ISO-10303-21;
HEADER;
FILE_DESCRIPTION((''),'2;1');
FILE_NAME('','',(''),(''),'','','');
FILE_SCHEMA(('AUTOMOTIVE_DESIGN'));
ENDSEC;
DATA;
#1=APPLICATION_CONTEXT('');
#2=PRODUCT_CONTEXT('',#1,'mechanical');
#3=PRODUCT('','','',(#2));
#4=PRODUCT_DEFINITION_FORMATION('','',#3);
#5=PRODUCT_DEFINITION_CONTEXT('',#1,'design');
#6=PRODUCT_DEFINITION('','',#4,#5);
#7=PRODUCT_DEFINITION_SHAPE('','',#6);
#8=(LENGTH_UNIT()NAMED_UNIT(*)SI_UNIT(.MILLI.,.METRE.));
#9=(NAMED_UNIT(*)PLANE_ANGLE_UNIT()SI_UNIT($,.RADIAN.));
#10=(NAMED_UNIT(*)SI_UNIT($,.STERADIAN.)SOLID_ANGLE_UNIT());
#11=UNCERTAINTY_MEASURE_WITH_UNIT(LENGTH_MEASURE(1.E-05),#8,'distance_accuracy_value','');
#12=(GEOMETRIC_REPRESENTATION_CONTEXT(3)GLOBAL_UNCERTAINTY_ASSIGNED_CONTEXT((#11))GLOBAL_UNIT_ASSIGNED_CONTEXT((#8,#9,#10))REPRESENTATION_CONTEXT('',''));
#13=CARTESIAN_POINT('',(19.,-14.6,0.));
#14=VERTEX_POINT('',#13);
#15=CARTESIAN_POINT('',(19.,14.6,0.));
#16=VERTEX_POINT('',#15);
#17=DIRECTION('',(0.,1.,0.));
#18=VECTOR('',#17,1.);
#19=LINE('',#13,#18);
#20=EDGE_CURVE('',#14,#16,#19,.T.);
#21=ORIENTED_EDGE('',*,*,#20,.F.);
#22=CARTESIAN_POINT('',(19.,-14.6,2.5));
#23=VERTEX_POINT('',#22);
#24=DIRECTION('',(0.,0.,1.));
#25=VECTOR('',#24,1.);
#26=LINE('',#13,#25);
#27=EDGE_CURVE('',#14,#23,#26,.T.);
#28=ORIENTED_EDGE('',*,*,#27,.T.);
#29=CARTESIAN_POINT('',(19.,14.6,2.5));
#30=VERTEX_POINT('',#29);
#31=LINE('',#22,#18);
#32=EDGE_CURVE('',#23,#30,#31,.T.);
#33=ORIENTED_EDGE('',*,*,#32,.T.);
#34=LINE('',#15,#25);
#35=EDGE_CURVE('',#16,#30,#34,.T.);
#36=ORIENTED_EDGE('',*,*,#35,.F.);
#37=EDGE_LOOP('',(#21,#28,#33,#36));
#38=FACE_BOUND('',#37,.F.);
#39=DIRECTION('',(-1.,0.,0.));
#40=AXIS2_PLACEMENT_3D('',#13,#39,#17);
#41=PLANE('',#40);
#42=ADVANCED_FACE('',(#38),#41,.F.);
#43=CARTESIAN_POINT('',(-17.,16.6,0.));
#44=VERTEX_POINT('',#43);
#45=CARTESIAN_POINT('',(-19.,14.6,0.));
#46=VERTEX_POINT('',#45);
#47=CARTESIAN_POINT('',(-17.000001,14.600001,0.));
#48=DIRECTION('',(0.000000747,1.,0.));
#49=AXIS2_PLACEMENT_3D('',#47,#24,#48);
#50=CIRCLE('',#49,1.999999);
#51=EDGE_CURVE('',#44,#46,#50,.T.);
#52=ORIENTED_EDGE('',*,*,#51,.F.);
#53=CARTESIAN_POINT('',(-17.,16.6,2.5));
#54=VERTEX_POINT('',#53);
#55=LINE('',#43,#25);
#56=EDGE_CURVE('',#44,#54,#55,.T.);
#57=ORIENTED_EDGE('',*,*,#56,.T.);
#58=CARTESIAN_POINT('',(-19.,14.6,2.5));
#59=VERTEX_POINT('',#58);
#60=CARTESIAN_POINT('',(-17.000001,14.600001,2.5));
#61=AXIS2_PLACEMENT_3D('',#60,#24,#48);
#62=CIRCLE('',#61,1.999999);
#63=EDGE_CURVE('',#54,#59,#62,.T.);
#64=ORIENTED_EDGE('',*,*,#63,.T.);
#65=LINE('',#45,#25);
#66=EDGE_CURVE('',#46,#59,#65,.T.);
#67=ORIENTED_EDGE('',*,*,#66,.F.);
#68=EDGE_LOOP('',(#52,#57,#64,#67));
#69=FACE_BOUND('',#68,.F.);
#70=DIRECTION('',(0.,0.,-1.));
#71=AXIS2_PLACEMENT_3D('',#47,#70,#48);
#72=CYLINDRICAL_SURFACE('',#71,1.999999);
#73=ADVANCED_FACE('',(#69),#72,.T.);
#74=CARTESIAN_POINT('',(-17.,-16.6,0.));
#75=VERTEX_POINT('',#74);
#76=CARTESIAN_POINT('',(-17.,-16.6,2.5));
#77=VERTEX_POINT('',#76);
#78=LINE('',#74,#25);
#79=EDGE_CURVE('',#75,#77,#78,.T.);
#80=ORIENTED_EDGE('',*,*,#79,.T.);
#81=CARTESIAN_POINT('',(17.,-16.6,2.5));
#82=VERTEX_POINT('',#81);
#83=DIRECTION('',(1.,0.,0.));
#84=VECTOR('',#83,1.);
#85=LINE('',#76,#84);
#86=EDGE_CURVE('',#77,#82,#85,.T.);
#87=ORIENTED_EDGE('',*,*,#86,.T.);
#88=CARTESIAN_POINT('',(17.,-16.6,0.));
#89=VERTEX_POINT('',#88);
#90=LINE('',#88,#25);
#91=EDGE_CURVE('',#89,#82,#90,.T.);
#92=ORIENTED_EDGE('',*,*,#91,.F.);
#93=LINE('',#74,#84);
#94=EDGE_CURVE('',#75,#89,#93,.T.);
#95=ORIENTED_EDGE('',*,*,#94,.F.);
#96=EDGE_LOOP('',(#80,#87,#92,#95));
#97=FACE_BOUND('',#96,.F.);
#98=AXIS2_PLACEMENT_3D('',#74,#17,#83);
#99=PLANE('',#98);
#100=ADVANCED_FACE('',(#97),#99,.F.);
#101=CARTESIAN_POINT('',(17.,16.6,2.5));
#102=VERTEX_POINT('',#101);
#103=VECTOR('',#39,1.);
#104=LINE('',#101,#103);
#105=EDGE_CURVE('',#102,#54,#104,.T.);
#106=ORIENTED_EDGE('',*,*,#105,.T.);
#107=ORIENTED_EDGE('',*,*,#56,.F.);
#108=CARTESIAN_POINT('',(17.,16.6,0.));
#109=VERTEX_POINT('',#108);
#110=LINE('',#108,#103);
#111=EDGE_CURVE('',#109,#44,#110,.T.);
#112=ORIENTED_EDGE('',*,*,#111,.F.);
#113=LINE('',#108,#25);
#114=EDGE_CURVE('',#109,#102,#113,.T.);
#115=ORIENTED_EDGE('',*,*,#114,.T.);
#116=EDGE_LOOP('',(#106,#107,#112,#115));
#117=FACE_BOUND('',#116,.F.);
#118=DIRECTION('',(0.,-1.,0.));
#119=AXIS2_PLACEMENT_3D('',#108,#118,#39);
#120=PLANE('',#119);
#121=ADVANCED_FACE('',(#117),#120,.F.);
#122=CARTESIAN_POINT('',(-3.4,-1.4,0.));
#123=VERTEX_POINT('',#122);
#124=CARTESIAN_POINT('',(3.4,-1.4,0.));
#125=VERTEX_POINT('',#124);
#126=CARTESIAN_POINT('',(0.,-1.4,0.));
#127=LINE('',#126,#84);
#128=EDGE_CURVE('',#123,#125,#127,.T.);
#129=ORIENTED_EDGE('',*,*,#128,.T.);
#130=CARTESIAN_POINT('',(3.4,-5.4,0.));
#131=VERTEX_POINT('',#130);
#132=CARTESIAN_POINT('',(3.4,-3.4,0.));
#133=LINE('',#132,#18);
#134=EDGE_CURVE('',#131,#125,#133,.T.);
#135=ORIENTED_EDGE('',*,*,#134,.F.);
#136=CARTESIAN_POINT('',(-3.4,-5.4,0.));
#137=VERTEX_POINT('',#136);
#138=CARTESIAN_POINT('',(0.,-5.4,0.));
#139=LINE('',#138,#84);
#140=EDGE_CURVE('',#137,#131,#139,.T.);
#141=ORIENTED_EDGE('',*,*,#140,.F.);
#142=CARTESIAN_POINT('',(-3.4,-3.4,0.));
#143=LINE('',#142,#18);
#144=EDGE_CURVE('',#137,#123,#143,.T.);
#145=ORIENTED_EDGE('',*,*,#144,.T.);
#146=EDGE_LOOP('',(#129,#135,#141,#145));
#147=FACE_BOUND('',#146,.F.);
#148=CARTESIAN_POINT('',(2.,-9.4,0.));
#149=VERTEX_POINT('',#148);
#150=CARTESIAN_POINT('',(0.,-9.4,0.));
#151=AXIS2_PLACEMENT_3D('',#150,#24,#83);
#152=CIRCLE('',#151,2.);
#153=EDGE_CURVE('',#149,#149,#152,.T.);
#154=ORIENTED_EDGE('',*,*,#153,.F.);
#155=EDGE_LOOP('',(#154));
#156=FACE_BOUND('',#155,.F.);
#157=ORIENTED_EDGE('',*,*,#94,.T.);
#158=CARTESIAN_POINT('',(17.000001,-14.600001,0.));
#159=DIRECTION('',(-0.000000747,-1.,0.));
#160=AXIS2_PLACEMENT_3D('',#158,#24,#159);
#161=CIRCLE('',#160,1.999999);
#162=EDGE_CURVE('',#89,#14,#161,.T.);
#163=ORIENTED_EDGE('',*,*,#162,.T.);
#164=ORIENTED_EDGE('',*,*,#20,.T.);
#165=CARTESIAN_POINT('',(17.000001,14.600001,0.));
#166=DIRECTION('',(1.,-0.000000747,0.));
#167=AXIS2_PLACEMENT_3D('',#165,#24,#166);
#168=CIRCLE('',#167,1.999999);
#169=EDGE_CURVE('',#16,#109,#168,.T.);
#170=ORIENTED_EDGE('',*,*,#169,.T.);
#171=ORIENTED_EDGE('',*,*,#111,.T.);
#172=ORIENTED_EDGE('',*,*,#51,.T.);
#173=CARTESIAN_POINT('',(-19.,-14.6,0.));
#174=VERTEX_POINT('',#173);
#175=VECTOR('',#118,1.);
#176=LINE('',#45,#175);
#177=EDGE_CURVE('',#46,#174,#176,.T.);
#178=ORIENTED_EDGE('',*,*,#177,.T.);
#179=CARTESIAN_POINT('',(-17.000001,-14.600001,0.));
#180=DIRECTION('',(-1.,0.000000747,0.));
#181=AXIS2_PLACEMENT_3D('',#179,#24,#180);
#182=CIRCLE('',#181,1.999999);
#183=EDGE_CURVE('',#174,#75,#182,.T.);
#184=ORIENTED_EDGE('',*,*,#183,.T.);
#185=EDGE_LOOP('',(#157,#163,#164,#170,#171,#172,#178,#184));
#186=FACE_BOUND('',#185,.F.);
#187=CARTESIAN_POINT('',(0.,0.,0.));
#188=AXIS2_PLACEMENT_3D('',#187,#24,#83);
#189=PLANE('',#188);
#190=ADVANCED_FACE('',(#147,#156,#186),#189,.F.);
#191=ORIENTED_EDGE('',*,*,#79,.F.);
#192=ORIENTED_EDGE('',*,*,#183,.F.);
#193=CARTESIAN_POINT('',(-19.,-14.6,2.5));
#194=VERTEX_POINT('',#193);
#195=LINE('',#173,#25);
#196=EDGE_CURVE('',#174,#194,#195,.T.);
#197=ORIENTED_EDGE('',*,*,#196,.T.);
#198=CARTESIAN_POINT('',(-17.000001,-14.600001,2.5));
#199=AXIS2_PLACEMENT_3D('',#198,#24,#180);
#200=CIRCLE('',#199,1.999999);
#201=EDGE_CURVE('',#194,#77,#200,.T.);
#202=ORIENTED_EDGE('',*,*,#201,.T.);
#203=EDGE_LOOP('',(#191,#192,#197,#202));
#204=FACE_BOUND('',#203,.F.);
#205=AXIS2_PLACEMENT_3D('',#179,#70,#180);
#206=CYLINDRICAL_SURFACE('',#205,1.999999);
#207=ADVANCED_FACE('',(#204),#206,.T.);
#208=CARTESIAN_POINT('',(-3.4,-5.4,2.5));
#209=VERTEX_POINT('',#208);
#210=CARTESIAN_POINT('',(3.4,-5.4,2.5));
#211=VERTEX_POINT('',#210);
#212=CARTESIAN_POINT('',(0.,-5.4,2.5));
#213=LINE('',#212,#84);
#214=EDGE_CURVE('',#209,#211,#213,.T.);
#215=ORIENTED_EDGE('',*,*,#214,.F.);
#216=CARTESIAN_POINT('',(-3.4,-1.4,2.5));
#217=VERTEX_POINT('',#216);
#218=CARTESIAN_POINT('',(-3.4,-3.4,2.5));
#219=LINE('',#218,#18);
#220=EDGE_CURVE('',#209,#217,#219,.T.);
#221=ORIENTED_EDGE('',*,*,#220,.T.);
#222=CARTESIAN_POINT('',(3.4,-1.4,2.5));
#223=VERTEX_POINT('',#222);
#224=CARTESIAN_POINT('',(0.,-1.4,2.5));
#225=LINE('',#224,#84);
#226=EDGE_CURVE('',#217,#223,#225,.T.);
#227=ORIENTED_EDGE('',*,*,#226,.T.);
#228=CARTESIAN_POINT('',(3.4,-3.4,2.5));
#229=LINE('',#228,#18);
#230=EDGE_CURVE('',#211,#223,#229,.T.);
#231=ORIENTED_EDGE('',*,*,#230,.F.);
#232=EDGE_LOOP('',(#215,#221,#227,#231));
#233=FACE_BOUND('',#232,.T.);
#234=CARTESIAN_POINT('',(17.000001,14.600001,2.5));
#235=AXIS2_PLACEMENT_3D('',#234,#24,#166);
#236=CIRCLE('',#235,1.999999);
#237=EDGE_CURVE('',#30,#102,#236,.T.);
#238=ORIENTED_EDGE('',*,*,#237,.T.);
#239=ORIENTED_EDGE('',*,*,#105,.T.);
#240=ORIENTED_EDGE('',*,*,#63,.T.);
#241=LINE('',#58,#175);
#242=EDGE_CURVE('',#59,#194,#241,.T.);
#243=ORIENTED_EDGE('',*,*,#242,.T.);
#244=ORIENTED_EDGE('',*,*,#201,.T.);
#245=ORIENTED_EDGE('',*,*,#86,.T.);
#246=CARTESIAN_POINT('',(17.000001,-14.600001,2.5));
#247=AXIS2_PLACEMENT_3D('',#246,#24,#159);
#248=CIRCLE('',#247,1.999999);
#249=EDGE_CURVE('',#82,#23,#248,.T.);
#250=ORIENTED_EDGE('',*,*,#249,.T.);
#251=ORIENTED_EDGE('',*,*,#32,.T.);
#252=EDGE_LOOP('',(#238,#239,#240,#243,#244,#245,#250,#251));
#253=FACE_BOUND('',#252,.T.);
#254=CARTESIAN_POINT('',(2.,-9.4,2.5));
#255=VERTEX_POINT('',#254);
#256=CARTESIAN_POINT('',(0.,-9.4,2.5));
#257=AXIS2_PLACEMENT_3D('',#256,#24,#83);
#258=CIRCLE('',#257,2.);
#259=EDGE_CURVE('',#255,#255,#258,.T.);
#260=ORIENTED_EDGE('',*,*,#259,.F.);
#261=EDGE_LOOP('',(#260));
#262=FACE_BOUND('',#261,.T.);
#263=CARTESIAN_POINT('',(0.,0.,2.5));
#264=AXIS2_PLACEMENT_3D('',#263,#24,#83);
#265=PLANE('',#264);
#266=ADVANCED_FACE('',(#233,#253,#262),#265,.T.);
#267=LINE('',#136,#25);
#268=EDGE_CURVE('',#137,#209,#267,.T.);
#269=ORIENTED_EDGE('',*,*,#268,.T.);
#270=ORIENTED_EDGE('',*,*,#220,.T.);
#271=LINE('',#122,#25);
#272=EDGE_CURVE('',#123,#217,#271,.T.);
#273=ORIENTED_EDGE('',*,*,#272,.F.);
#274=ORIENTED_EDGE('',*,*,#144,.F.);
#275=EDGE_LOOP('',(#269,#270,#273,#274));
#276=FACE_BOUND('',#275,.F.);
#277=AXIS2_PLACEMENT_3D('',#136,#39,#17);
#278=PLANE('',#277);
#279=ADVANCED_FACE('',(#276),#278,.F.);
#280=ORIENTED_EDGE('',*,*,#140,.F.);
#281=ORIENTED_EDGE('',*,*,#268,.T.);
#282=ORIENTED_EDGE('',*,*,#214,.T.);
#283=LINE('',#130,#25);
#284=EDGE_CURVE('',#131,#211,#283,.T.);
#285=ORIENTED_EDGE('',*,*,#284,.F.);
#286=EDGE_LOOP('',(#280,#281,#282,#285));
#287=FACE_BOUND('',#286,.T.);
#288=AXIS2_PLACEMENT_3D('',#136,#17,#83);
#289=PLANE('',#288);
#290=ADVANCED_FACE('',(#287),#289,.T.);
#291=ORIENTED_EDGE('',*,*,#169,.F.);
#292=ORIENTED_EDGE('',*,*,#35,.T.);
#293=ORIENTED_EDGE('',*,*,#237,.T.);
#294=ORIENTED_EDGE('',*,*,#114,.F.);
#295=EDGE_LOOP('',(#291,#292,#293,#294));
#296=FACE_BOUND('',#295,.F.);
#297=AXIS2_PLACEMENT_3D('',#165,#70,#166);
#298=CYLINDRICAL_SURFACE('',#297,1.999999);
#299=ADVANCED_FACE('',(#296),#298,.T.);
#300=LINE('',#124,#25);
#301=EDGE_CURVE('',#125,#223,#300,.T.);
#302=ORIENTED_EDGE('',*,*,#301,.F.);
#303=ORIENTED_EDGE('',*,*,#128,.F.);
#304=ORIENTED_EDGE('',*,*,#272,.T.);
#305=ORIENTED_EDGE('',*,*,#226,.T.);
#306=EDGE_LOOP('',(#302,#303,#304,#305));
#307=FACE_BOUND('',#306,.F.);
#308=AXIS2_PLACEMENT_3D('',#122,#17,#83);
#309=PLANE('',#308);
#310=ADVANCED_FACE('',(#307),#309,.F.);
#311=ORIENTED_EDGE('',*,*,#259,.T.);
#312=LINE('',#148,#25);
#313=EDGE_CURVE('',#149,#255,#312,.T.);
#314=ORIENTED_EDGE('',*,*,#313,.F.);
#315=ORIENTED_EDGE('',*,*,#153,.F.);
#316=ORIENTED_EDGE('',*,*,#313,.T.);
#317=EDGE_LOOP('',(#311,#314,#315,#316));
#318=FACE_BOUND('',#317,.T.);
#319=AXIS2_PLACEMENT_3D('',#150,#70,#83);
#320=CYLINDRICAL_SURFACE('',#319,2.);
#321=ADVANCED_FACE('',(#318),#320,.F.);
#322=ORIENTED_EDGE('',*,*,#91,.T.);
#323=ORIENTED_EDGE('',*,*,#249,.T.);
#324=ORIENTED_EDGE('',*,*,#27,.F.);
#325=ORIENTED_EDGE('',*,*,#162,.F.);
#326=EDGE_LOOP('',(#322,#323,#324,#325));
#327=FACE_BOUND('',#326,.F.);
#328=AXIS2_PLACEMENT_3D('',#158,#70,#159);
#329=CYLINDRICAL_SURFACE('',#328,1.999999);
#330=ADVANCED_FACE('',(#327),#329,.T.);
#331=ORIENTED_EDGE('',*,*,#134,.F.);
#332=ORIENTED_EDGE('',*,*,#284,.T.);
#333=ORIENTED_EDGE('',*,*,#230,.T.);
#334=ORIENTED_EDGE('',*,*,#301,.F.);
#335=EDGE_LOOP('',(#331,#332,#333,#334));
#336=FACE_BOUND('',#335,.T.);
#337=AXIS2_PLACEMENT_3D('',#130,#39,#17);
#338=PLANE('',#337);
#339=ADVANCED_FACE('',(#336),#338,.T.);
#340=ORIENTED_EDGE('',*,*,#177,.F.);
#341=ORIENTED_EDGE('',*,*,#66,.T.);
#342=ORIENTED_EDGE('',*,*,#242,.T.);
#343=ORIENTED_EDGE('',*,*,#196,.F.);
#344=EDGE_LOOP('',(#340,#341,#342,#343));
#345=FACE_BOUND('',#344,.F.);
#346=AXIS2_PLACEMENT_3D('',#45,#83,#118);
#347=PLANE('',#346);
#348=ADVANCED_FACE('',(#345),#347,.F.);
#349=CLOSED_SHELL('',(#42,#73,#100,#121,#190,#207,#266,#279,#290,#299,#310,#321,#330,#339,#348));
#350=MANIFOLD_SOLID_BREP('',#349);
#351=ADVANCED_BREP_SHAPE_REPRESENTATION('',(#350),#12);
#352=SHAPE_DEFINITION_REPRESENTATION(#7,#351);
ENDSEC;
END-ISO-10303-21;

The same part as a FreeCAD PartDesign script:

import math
import FreeCAD as App
import Part
import Sketcher
from FreeCAD import Vector
Q = App.Units.Quantity


def add_polygon(sketch, points):
    """Adds a closed chain of lines whose ends are joined by coincident constraints."""
    first, n = sketch.GeometryCount, len(points)
    for a, b in zip(points, points[1:] + points[:1]):
        sketch.addGeometry(Part.LineSegment(App.Vector(*a, 0), App.Vector(*b, 0)), False)
    for i in range(n):
        sketch.addConstraint(Sketcher.Constraint("Coincident", first + i, 2, first + (i + 1) % n, 1))

doc = App.newDocument("Part")
body = doc.addObject("PartDesign::Body", "Body")

sketch1 = body.newObject("Sketcher::SketchObject", "Sketch")
sketch1.AttachmentSupport = (doc.getObject("XY_Plane"), [""])
sketch1.MapMode = "FlatFace"
sketch1.addGeometry(Part.LineSegment(Vector(17, 16.6, 0), Vector(-17, 16.6, 0)), False)
sketch1.addGeometry(Part.ArcOfCircle(Part.Circle(Vector(-17.000001, 14.600001, 0), Vector(0, 0, 1), 1.999999), math.radians(89.999957), math.radians(180.000043)), False)
sketch1.addGeometry(Part.LineSegment(Vector(-19, 14.6, 0), Vector(-19, -14.6, 0)), False)
sketch1.addGeometry(Part.ArcOfCircle(Part.Circle(Vector(-17.000001, -14.600001, 0), Vector(0, 0, 1), 1.999999), math.radians(179.999957), math.radians(270.000043)), False)
sketch1.addGeometry(Part.LineSegment(Vector(-17, -16.6, 0), Vector(17, -16.6, 0)), False)
sketch1.addGeometry(Part.ArcOfCircle(Part.Circle(Vector(17.000001, -14.600001, 0), Vector(0, 0, 1), 1.999999), math.radians(-90.000043), math.radians(0.000043)), False)
sketch1.addGeometry(Part.LineSegment(Vector(19, -14.6, 0), Vector(19, 14.6, 0)), False)
sketch1.addGeometry(Part.ArcOfCircle(Part.Circle(Vector(17.000001, 14.600001, 0), Vector(0, 0, 1), 1.999999), math.radians(-0.000043), math.radians(90.000043)), False)
sketch1.addGeometry(Part.Circle(Vector(0, -9.4, 0), Vector(0, 0, 1), 2), False)
add_polygon(sketch1, [(3.4, -5.4), (-3.4, -5.4), (-3.4, -1.4), (3.4, -1.4)])
sketch1.addConstraint(Sketcher.Constraint("Tangent", 0, 2, 1, 1))
sketch1.addConstraint(Sketcher.Constraint("Tangent", 1, 2, 2, 1))
sketch1.addConstraint(Sketcher.Constraint("Tangent", 2, 2, 3, 1))
sketch1.addConstraint(Sketcher.Constraint("Tangent", 3, 2, 4, 1))
sketch1.addConstraint(Sketcher.Constraint("Tangent", 4, 2, 5, 1))
sketch1.addConstraint(Sketcher.Constraint("Tangent", 5, 2, 6, 1))
sketch1.addConstraint(Sketcher.Constraint("Tangent", 6, 2, 7, 1))
sketch1.addConstraint(Sketcher.Constraint("Tangent", 7, 2, 0, 1))
sketch1.addConstraint(Sketcher.Constraint("Horizontal", 0))
sketch1.addConstraint(Sketcher.Constraint("Vertical", 2))
sketch1.addConstraint(Sketcher.Constraint("Horizontal", 4))
sketch1.addConstraint(Sketcher.Constraint("Vertical", 6))
sketch1.addConstraint(Sketcher.Constraint("Horizontal", 9))
sketch1.addConstraint(Sketcher.Constraint("Vertical", 10))
sketch1.addConstraint(Sketcher.Constraint("Horizontal", 11))
sketch1.addConstraint(Sketcher.Constraint("Vertical", 12))
sketch1.addConstraint(Sketcher.Constraint("Equal", 1, 3))
sketch1.addConstraint(Sketcher.Constraint("Equal", 3, 5))
sketch1.addConstraint(Sketcher.Constraint("Equal", 5, 7))
sketch1.addConstraint(Sketcher.Constraint("Equal", 7, 8))
sketch1.addConstraint(Sketcher.Constraint("Symmetric", 1, 3, 5, 3, -1, 1))
sketch1.addConstraint(Sketcher.Constraint("PointOnObject", 8, 3, -2))
sketch1.addConstraint(Sketcher.Constraint("Diameter", 8, Q("4 mm")))
sketch1.addConstraint(Sketcher.Constraint("DistanceX", 0, 2, 0, 1, Q("34 mm")))
sketch1.addConstraint(Sketcher.Constraint("DistanceY", 10, 1, 10, 2, Q("4 mm")))
sketch1.addConstraint(Sketcher.Constraint("DistanceX", 9, 2, 9, 1, Q("6.8 mm")))
sketch1.addConstraint(Sketcher.Constraint("DistanceY", 2, 2, 2, 1, Q("29.2 mm")))
sketch1.addConstraint(Sketcher.Constraint("DistanceY", 8, 3, 1, 3, Q("24.000001 mm")))
sketch1.addConstraint(Sketcher.Constraint("DistanceY", 8, 3, 9, 2, Q("4 mm")))
sketch1.addConstraint(Sketcher.Constraint("DistanceX", 9, 2, -1, 1, Q("3.4 mm")))
pad1 = body.newObject("PartDesign::Pad", "Pad")
pad1.Profile = sketch1
pad1.Length = 2.5

doc.recompute()
